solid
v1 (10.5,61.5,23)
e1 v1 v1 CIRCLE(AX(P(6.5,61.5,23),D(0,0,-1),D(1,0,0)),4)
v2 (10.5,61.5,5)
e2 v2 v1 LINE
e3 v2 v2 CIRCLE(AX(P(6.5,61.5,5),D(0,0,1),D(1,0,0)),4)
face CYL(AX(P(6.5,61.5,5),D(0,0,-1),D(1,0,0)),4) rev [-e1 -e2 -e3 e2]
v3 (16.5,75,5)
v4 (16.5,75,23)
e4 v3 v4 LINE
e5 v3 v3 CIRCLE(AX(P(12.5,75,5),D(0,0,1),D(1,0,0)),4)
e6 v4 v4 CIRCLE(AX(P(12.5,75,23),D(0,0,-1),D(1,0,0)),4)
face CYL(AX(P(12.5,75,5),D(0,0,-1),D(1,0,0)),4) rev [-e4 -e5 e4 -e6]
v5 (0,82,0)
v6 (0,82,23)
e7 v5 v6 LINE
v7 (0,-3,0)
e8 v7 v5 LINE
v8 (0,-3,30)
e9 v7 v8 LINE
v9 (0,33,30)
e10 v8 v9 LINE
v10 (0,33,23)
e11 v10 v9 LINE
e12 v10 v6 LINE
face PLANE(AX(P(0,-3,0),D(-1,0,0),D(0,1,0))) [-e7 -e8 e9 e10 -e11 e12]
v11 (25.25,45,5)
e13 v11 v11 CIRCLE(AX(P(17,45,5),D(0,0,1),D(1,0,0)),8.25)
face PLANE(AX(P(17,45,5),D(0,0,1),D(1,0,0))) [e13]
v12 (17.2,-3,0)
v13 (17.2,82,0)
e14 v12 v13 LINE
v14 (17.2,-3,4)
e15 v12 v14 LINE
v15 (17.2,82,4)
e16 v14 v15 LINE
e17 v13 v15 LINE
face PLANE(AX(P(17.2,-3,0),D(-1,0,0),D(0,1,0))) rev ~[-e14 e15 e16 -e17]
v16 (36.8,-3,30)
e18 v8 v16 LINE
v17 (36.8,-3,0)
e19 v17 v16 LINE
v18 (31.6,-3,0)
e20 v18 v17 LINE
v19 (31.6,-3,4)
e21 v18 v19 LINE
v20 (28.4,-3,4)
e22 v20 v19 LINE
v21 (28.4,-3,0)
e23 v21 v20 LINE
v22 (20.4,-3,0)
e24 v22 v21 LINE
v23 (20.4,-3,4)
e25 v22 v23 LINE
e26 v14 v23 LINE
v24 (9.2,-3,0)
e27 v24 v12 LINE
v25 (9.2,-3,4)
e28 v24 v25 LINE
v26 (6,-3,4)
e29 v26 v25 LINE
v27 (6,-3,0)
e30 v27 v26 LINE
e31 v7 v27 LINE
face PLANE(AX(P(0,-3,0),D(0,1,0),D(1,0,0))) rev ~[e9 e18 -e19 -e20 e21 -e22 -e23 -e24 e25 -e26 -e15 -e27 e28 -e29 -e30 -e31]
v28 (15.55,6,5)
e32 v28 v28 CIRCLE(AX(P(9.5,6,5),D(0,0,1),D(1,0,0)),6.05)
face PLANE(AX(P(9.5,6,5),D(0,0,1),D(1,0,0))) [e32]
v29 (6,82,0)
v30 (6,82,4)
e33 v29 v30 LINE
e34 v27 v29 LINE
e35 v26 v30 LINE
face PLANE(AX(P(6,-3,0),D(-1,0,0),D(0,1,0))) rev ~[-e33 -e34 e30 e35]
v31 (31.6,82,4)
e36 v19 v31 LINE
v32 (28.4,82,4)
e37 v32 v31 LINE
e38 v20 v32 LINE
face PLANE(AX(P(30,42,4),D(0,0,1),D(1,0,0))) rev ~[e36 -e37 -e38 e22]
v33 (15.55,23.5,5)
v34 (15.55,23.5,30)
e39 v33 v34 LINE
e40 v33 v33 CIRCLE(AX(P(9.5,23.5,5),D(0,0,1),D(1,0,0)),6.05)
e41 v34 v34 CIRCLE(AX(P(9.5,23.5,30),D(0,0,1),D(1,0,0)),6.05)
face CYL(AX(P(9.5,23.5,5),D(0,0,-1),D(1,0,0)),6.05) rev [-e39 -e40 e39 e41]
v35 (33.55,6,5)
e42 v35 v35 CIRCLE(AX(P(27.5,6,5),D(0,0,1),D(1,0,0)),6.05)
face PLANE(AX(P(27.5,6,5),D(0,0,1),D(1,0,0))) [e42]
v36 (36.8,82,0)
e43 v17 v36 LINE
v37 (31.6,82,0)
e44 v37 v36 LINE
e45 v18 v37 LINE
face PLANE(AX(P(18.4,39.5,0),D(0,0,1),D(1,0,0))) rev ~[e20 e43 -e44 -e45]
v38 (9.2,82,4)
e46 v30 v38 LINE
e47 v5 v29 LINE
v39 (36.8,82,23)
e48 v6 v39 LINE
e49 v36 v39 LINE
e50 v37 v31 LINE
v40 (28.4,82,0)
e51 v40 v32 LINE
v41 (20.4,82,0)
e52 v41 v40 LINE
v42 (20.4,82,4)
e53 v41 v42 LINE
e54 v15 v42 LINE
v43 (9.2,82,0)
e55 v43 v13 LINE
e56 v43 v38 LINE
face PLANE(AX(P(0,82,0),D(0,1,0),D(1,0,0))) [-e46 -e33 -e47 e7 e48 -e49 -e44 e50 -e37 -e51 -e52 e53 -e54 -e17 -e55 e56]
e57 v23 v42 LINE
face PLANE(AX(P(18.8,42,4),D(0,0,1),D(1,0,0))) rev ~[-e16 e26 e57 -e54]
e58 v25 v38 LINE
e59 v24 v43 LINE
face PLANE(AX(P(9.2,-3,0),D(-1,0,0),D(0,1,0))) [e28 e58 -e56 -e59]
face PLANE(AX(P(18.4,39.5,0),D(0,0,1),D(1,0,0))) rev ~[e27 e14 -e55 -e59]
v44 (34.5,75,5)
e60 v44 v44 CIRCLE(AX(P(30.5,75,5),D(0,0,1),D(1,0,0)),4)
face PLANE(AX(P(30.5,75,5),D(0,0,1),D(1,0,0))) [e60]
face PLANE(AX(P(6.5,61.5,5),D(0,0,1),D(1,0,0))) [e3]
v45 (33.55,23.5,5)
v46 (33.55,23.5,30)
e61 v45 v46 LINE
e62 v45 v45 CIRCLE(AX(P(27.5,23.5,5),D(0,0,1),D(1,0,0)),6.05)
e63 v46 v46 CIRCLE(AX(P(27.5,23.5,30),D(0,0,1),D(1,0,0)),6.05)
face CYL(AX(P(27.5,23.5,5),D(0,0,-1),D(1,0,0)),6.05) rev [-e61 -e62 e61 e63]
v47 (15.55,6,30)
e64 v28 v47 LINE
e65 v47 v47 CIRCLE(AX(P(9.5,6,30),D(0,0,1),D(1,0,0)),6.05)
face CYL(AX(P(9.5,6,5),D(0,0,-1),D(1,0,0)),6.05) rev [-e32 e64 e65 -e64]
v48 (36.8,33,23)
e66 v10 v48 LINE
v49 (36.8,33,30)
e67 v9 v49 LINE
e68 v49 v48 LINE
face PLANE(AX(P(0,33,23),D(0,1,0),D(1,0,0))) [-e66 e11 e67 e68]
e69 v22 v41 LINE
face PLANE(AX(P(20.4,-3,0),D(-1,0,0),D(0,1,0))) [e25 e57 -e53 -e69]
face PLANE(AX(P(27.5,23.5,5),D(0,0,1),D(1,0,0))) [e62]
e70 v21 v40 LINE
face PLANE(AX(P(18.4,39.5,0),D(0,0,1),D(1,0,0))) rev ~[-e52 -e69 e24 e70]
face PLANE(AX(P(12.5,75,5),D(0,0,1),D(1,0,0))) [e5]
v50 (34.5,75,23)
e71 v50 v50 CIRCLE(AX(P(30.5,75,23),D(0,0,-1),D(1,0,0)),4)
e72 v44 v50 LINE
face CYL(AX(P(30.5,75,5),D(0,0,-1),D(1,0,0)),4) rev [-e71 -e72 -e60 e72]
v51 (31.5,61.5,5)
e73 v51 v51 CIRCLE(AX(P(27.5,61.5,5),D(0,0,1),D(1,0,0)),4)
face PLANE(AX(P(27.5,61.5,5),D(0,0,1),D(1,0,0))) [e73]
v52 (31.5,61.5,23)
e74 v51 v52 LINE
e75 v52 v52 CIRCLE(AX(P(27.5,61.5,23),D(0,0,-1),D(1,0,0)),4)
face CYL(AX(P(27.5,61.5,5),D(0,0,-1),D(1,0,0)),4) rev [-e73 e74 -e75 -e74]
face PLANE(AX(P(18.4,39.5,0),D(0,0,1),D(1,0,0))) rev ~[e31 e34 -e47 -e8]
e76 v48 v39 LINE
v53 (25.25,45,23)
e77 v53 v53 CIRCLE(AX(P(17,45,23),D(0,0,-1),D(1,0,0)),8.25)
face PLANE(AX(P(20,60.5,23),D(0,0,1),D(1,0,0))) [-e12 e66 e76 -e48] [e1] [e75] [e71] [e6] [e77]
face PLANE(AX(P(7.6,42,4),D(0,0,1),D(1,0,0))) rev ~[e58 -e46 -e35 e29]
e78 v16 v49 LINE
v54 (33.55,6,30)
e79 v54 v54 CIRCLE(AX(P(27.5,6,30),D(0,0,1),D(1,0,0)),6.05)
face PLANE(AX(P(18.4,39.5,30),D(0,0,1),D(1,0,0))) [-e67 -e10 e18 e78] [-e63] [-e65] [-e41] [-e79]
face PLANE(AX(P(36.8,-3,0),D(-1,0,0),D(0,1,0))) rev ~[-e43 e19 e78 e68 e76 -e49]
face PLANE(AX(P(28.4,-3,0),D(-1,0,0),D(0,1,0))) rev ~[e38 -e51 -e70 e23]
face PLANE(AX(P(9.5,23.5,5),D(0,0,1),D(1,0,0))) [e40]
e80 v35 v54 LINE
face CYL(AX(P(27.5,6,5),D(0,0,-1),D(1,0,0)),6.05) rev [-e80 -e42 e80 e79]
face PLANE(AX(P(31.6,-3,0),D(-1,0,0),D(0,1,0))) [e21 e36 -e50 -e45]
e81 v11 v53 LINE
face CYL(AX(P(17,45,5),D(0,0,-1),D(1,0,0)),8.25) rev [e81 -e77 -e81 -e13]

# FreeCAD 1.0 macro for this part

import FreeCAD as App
import Part
import Sketcher

doc = App.newDocument("Part")
body = doc.addObject("PartDesign::Body", "Body")

# Sketch on XY plane
sketch1 = body.newObject("Sketcher::SketchObject", "Sketch")
sketch1.AttachmentSupport = (doc.getObject("XY_Plane"), [""])
sketch1.MapMode = "FlatFace"
sketch1.AttachmentOffset = App.Placement(App.Vector(0, 0, 5), App.Rotation())
sketch1.addGeometry(Part.Circle(App.Vector(17, 45, 0), App.Vector(0, 0, 1), 8.25), False)
sketch1.addConstraint(Sketcher.Constraint("Diameter", 0, 16.5))
sketch1.addConstraint(Sketcher.Constraint("DistanceX", -1, 1, 0, 3, 17.0))
sketch1.addConstraint(Sketcher.Constraint("DistanceY", -1, 1, 0, 3, 45.0))
pad1 = body.newObject("PartDesign::Pad", "Pad")
pad1.Profile = sketch1
pad1.Length = 30
body2 = doc.addObject("PartDesign::Body", "Body001")

# Sketch on XY plane
sketch2 = body2.newObject("Sketcher::SketchObject", "Sketch001")
sketch2.AttachmentSupport = (doc.getObject("XY_Plane001"), [""])
sketch2.MapMode = "FlatFace"
sketch2.addGeometry(Part.LineSegment(App.Vector(28.4, 87, 0), App.Vector(28.4, -3, 0)), False)
sketch2.addGeometry(Part.LineSegment(App.Vector(28.4, -3, 0), App.Vector(31.6, -3, 0)), False)
sketch2.addGeometry(Part.LineSegment(App.Vector(31.6, -3, 0), App.Vector(31.6, 87, 0)), False)
sketch2.addGeometry(Part.LineSegment(App.Vector(31.6, 87, 0), App.Vector(28.4, 87, 0)), False)
sketch2.addConstraint(Sketcher.Constraint("Coincident", 0, 2, 1, 1))
sketch2.addConstraint(Sketcher.Constraint("Coincident", 1, 2, 2, 1))
sketch2.addConstraint(Sketcher.Constraint("Coincident", 2, 2, 3, 1))
sketch2.addConstraint(Sketcher.Constraint("Coincident", 3, 2, 0, 1))
sketch2.addConstraint(Sketcher.Constraint("Vertical", 0))
sketch2.addConstraint(Sketcher.Constraint("Horizontal", 1))
sketch2.addConstraint(Sketcher.Constraint("Vertical", 2))
sketch2.addConstraint(Sketcher.Constraint("Horizontal", 3))
sketch2.addConstraint(Sketcher.Constraint("DistanceY", 0, 2, 0, 1, 90.0))
sketch2.addConstraint(Sketcher.Constraint("DistanceX", 1, 1, 1, 2, 3.2))
sketch2.addConstraint(Sketcher.Constraint("DistanceY", 0, 2, -1, 1, 3.0))
sketch2.addConstraint(Sketcher.Constraint("DistanceX", -1, 1, 0, 2, 28.4))
pad2 = body2.newObject("PartDesign::Pad", "Pad001")
pad2.Profile = sketch2
pad2.Length = 4
body3 = doc.addObject("PartDesign::Body", "Body002")

# Sketch on XY plane
sketch3 = body3.newObject("Sketcher::SketchObject", "Sketch002")
sketch3.AttachmentSupport = (doc.getObject("XY_Plane002"), [""])
sketch3.MapMode = "FlatFace"
sketch3.addGeometry(Part.LineSegment(App.Vector(17.2, 87, 0), App.Vector(17.2, -3, 0)), False)
sketch3.addGeometry(Part.LineSegment(App.Vector(17.2, -3, 0), App.Vector(20.4, -3, 0)), False)
sketch3.addGeometry(Part.LineSegment(App.Vector(20.4, -3, 0), App.Vector(20.4, 87, 0)), False)
sketch3.addGeometry(Part.LineSegment(App.Vector(20.4, 87, 0), App.Vector(17.2, 87, 0)), False)
sketch3.addConstraint(Sketcher.Constraint("Coincident", 0, 2, 1, 1))
sketch3.addConstraint(Sketcher.Constraint("Coincident", 1, 2, 2, 1))
sketch3.addConstraint(Sketcher.Constraint("Coincident", 2, 2, 3, 1))
sketch3.addConstraint(Sketcher.Constraint("Coincident", 3, 2, 0, 1))
sketch3.addConstraint(Sketcher.Constraint("Vertical", 0))
sketch3.addConstraint(Sketcher.Constraint("Horizontal", 1))
sketch3.addConstraint(Sketcher.Constraint("Vertical", 2))
sketch3.addConstraint(Sketcher.Constraint("Horizontal", 3))
sketch3.addConstraint(Sketcher.Constraint("DistanceY", 0, 2, 0, 1, 90.0))
sketch3.addConstraint(Sketcher.Constraint("DistanceX", 1, 1, 1, 2, 3.2))
sketch3.addConstraint(Sketcher.Constraint("DistanceY", 0, 2, -1, 1, 3.0))
sketch3.addConstraint(Sketcher.Constraint("DistanceX", -1, 1, 0, 2, 17.2))
pad3 = body3.newObject("PartDesign::Pad", "Pad002")
pad3.Profile = sketch3
pad3.Length = 4
body4 = doc.addObject("PartDesign::Body", "Body003")

# Sketch on XY plane
sketch4 = body4.newObject("Sketcher::SketchObject", "Sketch003")
sketch4.AttachmentSupport = (doc.getObject("XY_Plane003"), [""])
sketch4.MapMode = "FlatFace"
sketch4.addGeometry(Part.LineSegment(App.Vector(6, 87, 0), App.Vector(6, -3, 0)), False)
sketch4.addGeometry(Part.LineSegment(App.Vector(6, -3, 0), App.Vector(9.2, -3, 0)), False)
sketch4.addGeometry(Part.LineSegment(App.Vector(9.2, -3, 0), App.Vector(9.2, 87, 0)), False)
sketch4.addGeometry(Part.LineSegment(App.Vector(9.2, 87, 0), App.Vector(6, 87, 0)), False)
sketch4.addConstraint(Sketcher.Constraint("Coincident", 0, 2, 1, 1))
sketch4.addConstraint(Sketcher.Constraint("Coincident", 1, 2, 2, 1))
sketch4.addConstraint(Sketcher.Constraint("Coincident", 2, 2, 3, 1))
sketch4.addConstraint(Sketcher.Constraint("Coincident", 3, 2, 0, 1))
sketch4.addConstraint(Sketcher.Constraint("Vertical", 0))
sketch4.addConstraint(Sketcher.Constraint("Horizontal", 1))
sketch4.addConstraint(Sketcher.Constraint("Vertical", 2))
sketch4.addConstraint(Sketcher.Constraint("Horizontal", 3))
sketch4.addConstraint(Sketcher.Constraint("DistanceY", 0, 2, 0, 1, 90.0))
sketch4.addConstraint(Sketcher.Constraint("DistanceX", 1, 1, 1, 2, 3.2))
sketch4.addConstraint(Sketcher.Constraint("DistanceX", -1, 1, 0, 2, 6.0))
sketch4.addConstraint(Sketcher.Constraint("DistanceY", 0, 2, -1, 1, 3.0))
pad4 = body4.newObject("PartDesign::Pad", "Pad003")
pad4.Profile = sketch4
pad4.Length = 4
body5 = doc.addObject("PartDesign::Body", "Body004")

# Sketch on XY plane
sketch5 = body5.newObject("Sketcher::SketchObject", "Sketch004")
sketch5.AttachmentSupport = (doc.getObject("XY_Plane004"), [""])
sketch5.MapMode = "FlatFace"
sketch5.AttachmentOffset = App.Placement(App.Vector(0, 0, 5), App.Rotation())
sketch5.addGeometry(Part.Circle(App.Vector(6.5, 61.5, 0), App.Vector(0, 0, 1), 4), False)
sketch5.addConstraint(Sketcher.Constraint("Diameter", 0, 8.0))
sketch5.addConstraint(Sketcher.Constraint("DistanceX", -1, 1, 0, 3, 6.5))
sketch5.addConstraint(Sketcher.Constraint("DistanceY", -1, 1, 0, 3, 61.5))
pad5 = body5.newObject("PartDesign::Pad", "Pad004")
pad5.Profile = sketch5
pad5.Length = 25
body6 = doc.addObject("PartDesign::Body", "Body005")

# Sketch on XY plane
sketch6 = body6.newObject("Sketcher::SketchObject", "Sketch005")
sketch6.AttachmentSupport = (doc.getObject("XY_Plane005"), [""])
sketch6.MapMode = "FlatFace"
sketch6.AttachmentOffset = App.Placement(App.Vector(0, 0, 5), App.Rotation())
sketch6.addGeometry(Part.Circle(App.Vector(30.5, 75, 0), App.Vector(0, 0, 1), 4), False)
sketch6.addConstraint(Sketcher.Constraint("Diameter", 0, 8.0))
sketch6.addConstraint(Sketcher.Constraint("DistanceY", -1, 1, 0, 3, 75.0))
sketch6.addConstraint(Sketcher.Constraint("DistanceX", -1, 1, 0, 3, 30.5))
pad6 = body6.newObject("PartDesign::Pad", "Pad005")
pad6.Profile = sketch6
pad6.Length = 25
body7 = doc.addObject("PartDesign::Body", "Body006")

# Sketch on XY plane
sketch7 = body7.newObject("Sketcher::SketchObject", "Sketch006")
sketch7.AttachmentSupport = (doc.getObject("XY_Plane006"), [""])
sketch7.MapMode = "FlatFace"
sketch7.AttachmentOffset = App.Placement(App.Vector(0, 0, 5), App.Rotation())
sketch7.addGeometry(Part.Circle(App.Vector(27.5, 61.5, 0), App.Vector(0, 0, 1), 4), False)
sketch7.addConstraint(Sketcher.Constraint("Diameter", 0, 8.0))
sketch7.addConstraint(Sketcher.Constraint("DistanceX", -1, 1, 0, 3, 27.5))
sketch7.addConstraint(Sketcher.Constraint("DistanceY", -1, 1, 0, 3, 61.5))
pad7 = body7.newObject("PartDesign::Pad", "Pad006")
pad7.Profile = sketch7
pad7.Length = 25
body8 = doc.addObject("PartDesign::Body", "Body007")

# Sketch on XY plane
sketch8 = body8.newObject("Sketcher::SketchObject", "Sketch007")
sketch8.AttachmentSupport = (doc.getObject("XY_Plane007"), [""])
sketch8.MapMode = "FlatFace"
sketch8.AttachmentOffset = App.Placement(App.Vector(0, 0, 5), App.Rotation())
sketch8.addGeometry(Part.Circle(App.Vector(12.5, 75, 0), App.Vector(0, 0, 1), 4), False)
sketch8.addConstraint(Sketcher.Constraint("Diameter", 0, 8.0))
sketch8.addConstraint(Sketcher.Constraint("DistanceY", -1, 1, 0, 3, 75.0))
sketch8.addConstraint(Sketcher.Constraint("DistanceX", -1, 1, 0, 3, 12.5))
pad8 = body8.newObject("PartDesign::Pad", "Pad007")
pad8.Profile = sketch8
pad8.Length = 25
body9 = doc.addObject("PartDesign::Body", "Body008")

# Sketch on XY plane
sketch9 = body9.newObject("Sketcher::SketchObject", "Sketch008")
sketch9.AttachmentSupport = (doc.getObject("XY_Plane008"), [""])
sketch9.MapMode = "FlatFace"
sketch9.AttachmentOffset = App.Placement(App.Vector(0, 0, 5), App.Rotation())
sketch9.addGeometry(Part.Circle(App.Vector(27.5, 23.5, 0), App.Vector(0, 0, 1), 6.05), False)
sketch9.addConstraint(Sketcher.Constraint("Diameter", 0, 12.1))
sketch9.addConstraint(Sketcher.Constraint("DistanceX", -1, 1, 0, 3, 27.5))
sketch9.addConstraint(Sketcher.Constraint("DistanceY", -1, 1, 0, 3, 23.5))
pad9 = body9.newObject("PartDesign::Pad", "Pad008")
pad9.Profile = sketch9
pad9.Length = 25
body10 = doc.addObject("PartDesign::Body", "Body009")

# Sketch on XY plane
sketch10 = body10.newObject("Sketcher::SketchObject", "Sketch009")
sketch10.AttachmentSupport = (doc.getObject("XY_Plane009"), [""])
sketch10.MapMode = "FlatFace"
sketch10.AttachmentOffset = App.Placement(App.Vector(0, 0, 5), App.Rotation())
sketch10.addGeometry(Part.Circle(App.Vector(9.5, 23.5, 0), App.Vector(0, 0, 1), 6.05), False)
sketch10.addConstraint(Sketcher.Constraint("Diameter", 0, 12.1))
sketch10.addConstraint(Sketcher.Constraint("DistanceX", -1, 1, 0, 3, 9.5))
sketch10.addConstraint(Sketcher.Constraint("DistanceY", -1, 1, 0, 3, 23.5))
pad10 = body10.newObject("PartDesign::Pad", "Pad009")
pad10.Profile = sketch10
pad10.Length = 25
body11 = doc.addObject("PartDesign::Body", "Body010")

# Sketch on XY plane
sketch11 = body11.newObject("Sketcher::SketchObject", "Sketch010")
sketch11.AttachmentSupport = (doc.getObject("XY_Plane010"), [""])
sketch11.MapMode = "FlatFace"
sketch11.AttachmentOffset = App.Placement(App.Vector(0, 0, 5), App.Rotation())
sketch11.addGeometry(Part.Circle(App.Vector(27.5, 6, 0), App.Vector(0, 0, 1), 6.05), False)
sketch11.addConstraint(Sketcher.Constraint("Diameter", 0, 12.1))
sketch11.addConstraint(Sketcher.Constraint("DistanceY", -1, 1, 0, 3, 6.0))
sketch11.addConstraint(Sketcher.Constraint("DistanceX", -1, 1, 0, 3, 27.5))
pad11 = body11.newObject("PartDesign::Pad", "Pad010")
pad11.Profile = sketch11
pad11.Length = 25
body12 = doc.addObject("PartDesign::Body", "Body011")

# Sketch on XY plane
sketch12 = body12.newObject("Sketcher::SketchObject", "Sketch011")
sketch12.AttachmentSupport = (doc.getObject("XY_Plane011"), [""])
sketch12.MapMode = "FlatFace"
sketch12.AttachmentOffset = App.Placement(App.Vector(0, 0, 5), App.Rotation())
sketch12.addGeometry(Part.Circle(App.Vector(9.5, 6, 0), App.Vector(0, 0, 1), 6.05), False)
sketch12.addConstraint(Sketcher.Constraint("Diameter", 0, 12.1))
sketch12.addConstraint(Sketcher.Constraint("DistanceY", -1, 1, 0, 3, 6.0))
sketch12.addConstraint(Sketcher.Constraint("DistanceX", -1, 1, 0, 3, 9.5))
pad12 = body12.newObject("PartDesign::Pad", "Pad011")
pad12.Profile = sketch12
pad12.Length = 25
body13 = doc.addObject("PartDesign::Body", "Body012")

# Sketch on XY plane
sketch13 = body13.newObject("Sketcher::SketchObject", "Sketch012")
sketch13.AttachmentSupport = (doc.getObject("XY_Plane012"), [""])
sketch13.MapMode = "FlatFace"
sketch13.AttachmentOffset = App.Placement(App.Vector(0, 0, 23), App.Rotation())
sketch13.addGeometry(Part.LineSegment(App.Vector(0, 88, 0), App.Vector(0, 33, 0)), False)
sketch13.addGeometry(Part.LineSegment(App.Vector(0, 33, 0), App.Vector(40, 33, 0)), False)
sketch13.addGeometry(Part.LineSegment(App.Vector(40, 33, 0), App.Vector(40, 88, 0)), False)
sketch13.addGeometry(Part.LineSegment(App.Vector(40, 88, 0), App.Vector(0, 88, 0)), False)
sketch13.addConstraint(Sketcher.Constraint("Coincident", 0, 2, 1, 1))
sketch13.addConstraint(Sketcher.Constraint("Coincident", 1, 2, 2, 1))
sketch13.addConstraint(Sketcher.Constraint("Coincident", 2, 2, 3, 1))
sketch13.addConstraint(Sketcher.Constraint("Coincident", 3, 2, 0, 1))
sketch13.addConstraint(Sketcher.Constraint("Vertical", 0))
sketch13.addConstraint(Sketcher.Constraint("Horizontal", 1))
sketch13.addConstraint(Sketcher.Constraint("Vertical", 2))
sketch13.addConstraint(Sketcher.Constraint("Horizontal", 3))
sketch13.addConstraint(Sketcher.Constraint("PointOnObject", 0, 2, -2))
sketch13.addConstraint(Sketcher.Constraint("DistanceX", 1, 1, 1, 2, 40.0))
sketch13.addConstraint(Sketcher.Constraint("DistanceY", 0, 2, 0, 1, 55.0))
sketch13.addConstraint(Sketcher.Constraint("DistanceY", -1, 1, 0, 2, 33.0))
pad13 = body13.newObject("PartDesign::Pad", "Pad012")
pad13.Profile = sketch13
pad13.Length = 7
body14 = doc.addObject("PartDesign::Body", "Body013")

# Sketch on XY plane
sketch14 = body14.newObject("Sketcher::SketchObject", "Sketch013")
sketch14.AttachmentSupport = (doc.getObject("XY_Plane013"), [""])
sketch14.MapMode = "FlatFace"
sketch14.addGeometry(Part.LineSegment(App.Vector(0, 82, 0), App.Vector(0, -3, 0)), False)
sketch14.addGeometry(Part.LineSegment(App.Vector(0, -3, 0), App.Vector(36.8, -3, 0)), False)
sketch14.addGeometry(Part.LineSegment(App.Vector(36.8, -3, 0), App.Vector(36.8, 82, 0)), False)
sketch14.addGeometry(Part.LineSegment(App.Vector(36.8, 82, 0), App.Vector(0, 82, 0)), False)
sketch14.addConstraint(Sketcher.Constraint("Coincident", 0, 2, 1, 1))
sketch14.addConstraint(Sketcher.Constraint("Coincident", 1, 2, 2, 1))
sketch14.addConstraint(Sketcher.Constraint("Coincident", 2, 2, 3, 1))
sketch14.addConstraint(Sketcher.Constraint("Coincident", 3, 2, 0, 1))
sketch14.addConstraint(Sketcher.Constraint("Vertical", 0))
sketch14.addConstraint(Sketcher.Constraint("Horizontal", 1))
sketch14.addConstraint(Sketcher.Constraint("Vertical", 2))
sketch14.addConstraint(Sketcher.Constraint("Horizontal", 3))
sketch14.addConstraint(Sketcher.Constraint("PointOnObject", 0, 2, -2))
sketch14.addConstraint(Sketcher.Constraint("DistanceY", 0, 2, 0, 1, 85.0))
sketch14.addConstraint(Sketcher.Constraint("DistanceX", 1, 1, 1, 2, 36.8))
sketch14.addConstraint(Sketcher.Constraint("DistanceY", 0, 2, -1, 1, 3.0))
pad14 = body14.newObject("PartDesign::Pad", "Pad013")
pad14.Profile = sketch14
pad14.Length = 30
doc.recompute()

boolean = body14.newObject("PartDesign::Boolean", "Boolean")
boolean.Type = "Cut"
boolean.addObjects([body13])
doc.recompute()

boolean2 = body14.newObject("PartDesign::Boolean", "Boolean001")
boolean2.Type = "Cut"
boolean2.addObjects([body12])
doc.recompute()

boolean3 = body14.newObject("PartDesign::Boolean", "Boolean002")
boolean3.Type = "Cut"
boolean3.addObjects([body11])
doc.recompute()

boolean4 = body14.newObject("PartDesign::Boolean", "Boolean003")
boolean4.Type = "Cut"
boolean4.addObjects([body10])
doc.recompute()

boolean5 = body14.newObject("PartDesign::Boolean", "Boolean004")
boolean5.Type = "Cut"
boolean5.addObjects([body9])
doc.recompute()

boolean6 = body14.newObject("PartDesign::Boolean", "Boolean005")
boolean6.Type = "Cut"
boolean6.addObjects([body8])
doc.recompute()

boolean7 = body14.newObject("PartDesign::Boolean", "Boolean006")
boolean7.Type = "Cut"
boolean7.addObjects([body7])
doc.recompute()

boolean8 = body14.newObject("PartDesign::Boolean", "Boolean007")
boolean8.Type = "Cut"
boolean8.addObjects([body6])
doc.recompute()

boolean9 = body14.newObject("PartDesign::Boolean", "Boolean008")
boolean9.Type = "Cut"
boolean9.addObjects([body5])
doc.recompute()

boolean10 = body14.newObject("PartDesign::Boolean", "Boolean009")
boolean10.Type = "Cut"
boolean10.addObjects([body4])
doc.recompute()

boolean11 = body14.newObject("PartDesign::Boolean", "Boolean010")
boolean11.Type = "Cut"
boolean11.addObjects([body3])
doc.recompute()

boolean12 = body14.newObject("PartDesign::Boolean", "Boolean011")
boolean12.Type = "Cut"
boolean12.addObjects([body2])
doc.recompute()

boolean13 = body14.newObject("PartDesign::Boolean", "Boolean012")
boolean13.Type = "Cut"
boolean13.addObjects([body])

doc.recompute()
